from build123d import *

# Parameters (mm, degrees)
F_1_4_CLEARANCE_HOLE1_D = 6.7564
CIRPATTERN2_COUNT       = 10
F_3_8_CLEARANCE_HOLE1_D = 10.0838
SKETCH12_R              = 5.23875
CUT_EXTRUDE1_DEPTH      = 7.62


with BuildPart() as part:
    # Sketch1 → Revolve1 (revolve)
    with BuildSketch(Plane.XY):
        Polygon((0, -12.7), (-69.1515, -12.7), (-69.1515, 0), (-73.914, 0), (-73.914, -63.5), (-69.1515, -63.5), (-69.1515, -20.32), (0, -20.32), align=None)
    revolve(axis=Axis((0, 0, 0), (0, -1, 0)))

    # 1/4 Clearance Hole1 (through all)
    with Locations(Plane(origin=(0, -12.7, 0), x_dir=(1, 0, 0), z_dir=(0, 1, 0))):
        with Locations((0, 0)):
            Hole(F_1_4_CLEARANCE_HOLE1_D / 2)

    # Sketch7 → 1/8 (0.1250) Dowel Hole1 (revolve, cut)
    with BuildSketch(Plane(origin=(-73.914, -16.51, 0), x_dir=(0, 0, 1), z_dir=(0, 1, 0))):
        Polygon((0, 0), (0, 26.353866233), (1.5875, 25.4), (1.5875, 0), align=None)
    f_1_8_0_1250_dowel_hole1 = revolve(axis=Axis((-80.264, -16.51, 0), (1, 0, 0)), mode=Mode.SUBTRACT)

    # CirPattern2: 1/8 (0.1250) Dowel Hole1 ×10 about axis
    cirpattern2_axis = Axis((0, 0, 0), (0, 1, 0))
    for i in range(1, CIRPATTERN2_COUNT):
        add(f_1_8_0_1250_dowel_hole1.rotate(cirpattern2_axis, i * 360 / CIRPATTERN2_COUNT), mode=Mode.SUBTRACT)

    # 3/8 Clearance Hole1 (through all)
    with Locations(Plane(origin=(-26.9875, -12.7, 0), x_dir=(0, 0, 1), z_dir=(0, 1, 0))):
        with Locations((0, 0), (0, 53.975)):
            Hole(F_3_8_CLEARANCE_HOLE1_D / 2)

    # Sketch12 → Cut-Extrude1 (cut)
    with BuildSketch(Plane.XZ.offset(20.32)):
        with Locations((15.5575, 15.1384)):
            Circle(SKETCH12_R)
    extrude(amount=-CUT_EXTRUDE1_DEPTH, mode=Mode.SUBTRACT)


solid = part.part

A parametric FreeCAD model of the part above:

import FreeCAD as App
import Part
import Sketcher
Q = App.Units.Quantity


def add_polygon(sketch, points):
    """Adds a closed chain of lines whose ends are joined by coincident constraints."""
    first, n = sketch.GeometryCount, len(points)
    for a, b in zip(points, points[1:] + points[:1]):
        sketch.addGeometry(Part.LineSegment(App.Vector(*a, 0), App.Vector(*b, 0)), False)
    for i in range(n):
        sketch.addConstraint(Sketcher.Constraint("Coincident", first + i, 2, first + (i + 1) % n, 1))

doc = App.newDocument("Part")
body = doc.addObject("PartDesign::Body", "Body")

sketch1 = body.newObject("Sketcher::SketchObject", "Sketch")
sketch1.AttachmentSupport = (doc.getObject("XY_Plane"), [""])
sketch1.MapMode = "FlatFace"
add_polygon(sketch1, [(0, -12.7), (-69.2, -12.7), (-69.2, 0), (-73.9, 0), (-73.9, -63.5), (-69.2, -63.5), (-69.2, -20.3), (0, -20.3)])
sketch1.addConstraint(Sketcher.Constraint("Horizontal", 0))
sketch1.addConstraint(Sketcher.Constraint("Vertical", 1))
sketch1.addConstraint(Sketcher.Constraint("Horizontal", 2))
sketch1.addConstraint(Sketcher.Constraint("Vertical", 3))
sketch1.addConstraint(Sketcher.Constraint("Horizontal", 4))
sketch1.addConstraint(Sketcher.Constraint("Vertical", 5))
sketch1.addConstraint(Sketcher.Constraint("Horizontal", 6))
sketch1.addConstraint(Sketcher.Constraint("Vertical", 7))
sketch1.addConstraint(Sketcher.Constraint("PointOnObject", 1, 2, -1))
sketch1.addConstraint(Sketcher.Constraint("PointOnObject", 6, 2, -2))
sketch1.addConstraint(Sketcher.Constraint("Vertical", 1, 2, 4, 2))
sketch1.addConstraint(Sketcher.Constraint("DistanceY", 1, 1, 1, 2, Q("0.5 in")))
sketch1.addConstraint(Sketcher.Constraint("DistanceY", 3, 2, 3, 1, Q("2.5 in")))
sketch1.addConstraint(Sketcher.Constraint("DistanceY", 5, 1, 5, 2, Q("1.7 in")))
sketch1.addConstraint(Sketcher.Constraint("DistanceX", 2, 2, 2, 1, Q("0.1875 in")))
sketch1.addConstraint(Sketcher.Constraint("DistanceX", 2, 2, -1, 1, Q("2.91 in")))
revolution = body.newObject("PartDesign::Revolution", "Revolution")
revolution.Profile = sketch1
revolution.ReferenceAxis = (sketch1, ["V_Axis"])
revolution.Angle = 360

sketch2 = body.newObject("Sketcher::SketchObject", "Sketch001")
sketch2.AttachmentSupport = (doc.getObject("XZ_Plane"), [""])
sketch2.MapMode = "FlatFace"
sketch2.AttachmentOffset = App.Placement(App.Vector(0, 0, 0.5 * 25.4), App.Rotation())
sketch2.addGeometry(Part.Circle(App.Vector(0, 0, 0), App.Vector(0, 0, 1), 3.4), False)
sketch2.addConstraint(Sketcher.Constraint("Coincident", 0, 3, -1, 1))
sketch2.addConstraint(Sketcher.Constraint("Diameter", 0, Q("0.266 in")))
doc.recompute()
hole = body.newObject("PartDesign::Hole", "Hole")
hole.Profile = sketch2
hole.ThreadType = "None"
hole.Diameter = Q("0.266 in")
hole.DepthType = "ThroughAll"
hole.Reversed = True

sketch3 = body.newObject("Sketcher::SketchObject", "Sketch002")
sketch3.AttachmentSupport = (doc.getObject("XZ_Plane"), [""])
sketch3.MapMode = "FlatFace"
sketch3.AttachmentOffset = App.Placement(App.Vector(0, 0, 0.65 * 25.4), App.Rotation())
add_polygon(sketch3, [(-47.6, 0), (-73.9, 0), (-73.9, 1.6), (-48.5, 1.6)])
sketch3.addConstraint(Sketcher.Constraint("Horizontal", 0))
sketch3.addConstraint(Sketcher.Constraint("Vertical", 1))
sketch3.addConstraint(Sketcher.Constraint("Horizontal", 2))
sketch3.addConstraint(Sketcher.Constraint("PointOnObject", 0, 2, -1))
sketch3.addConstraint(Sketcher.Constraint("DistanceX", 2, 1, 2, 2, Q("1 in")))
sketch3.addConstraint(Sketcher.Constraint("Angle", 3, Q("-59 deg")))
sketch3.addConstraint(Sketcher.Constraint("DistanceY", 1, 1, 1, 2, Q("0.0625 in")))
sketch3.addConstraint(Sketcher.Constraint("DistanceX", 0, 2, -1, 1, Q("2.91 in")))
groove = body.newObject("PartDesign::Groove", "Groove")
groove.Profile = sketch3
groove.ReferenceAxis = (sketch3, ["H_Axis"])
groove.Angle = 360
doc.recompute()

polarpattern = body.newObject("PartDesign::PolarPattern", "PolarPattern")
polarpattern.Originals = [groove]
polarpattern.Axis = (doc.getObject("Y_Axis"), [""])
polarpattern.Angle = 360
polarpattern.Occurrences = 10
body.Tip = polarpattern

sketch4 = body.newObject("Sketcher::SketchObject", "Sketch003")
sketch4.AttachmentSupport = (doc.getObject("XZ_Plane"), [""])
sketch4.MapMode = "FlatFace"
sketch4.AttachmentOffset = App.Placement(App.Vector(0, 0, 0.5 * 25.4), App.Rotation())
sketch4.addGeometry(Part.Circle(App.Vector(-27, 0, 0), App.Vector(0, 0, 1), 5), False)
sketch4.addGeometry(Part.Circle(App.Vector(27, 0, 0), App.Vector(0, 0, 1), 5), False)
sketch4.addConstraint(Sketcher.Constraint("Equal", 0, 1))
sketch4.addConstraint(Sketcher.Constraint("Symmetric", 0, 3, 1, 3, -1, 1))
sketch4.addConstraint(Sketcher.Constraint("PointOnObject", 0, 3, -1))
sketch4.addConstraint(Sketcher.Constraint("Diameter", 0, Q("0.397 in")))
sketch4.addConstraint(Sketcher.Constraint("DistanceX", 0, 3, -1, 1, Q("1.0625 in")))
doc.recompute()
hole2 = body.newObject("PartDesign::Hole", "Hole001")
hole2.Profile = sketch4
hole2.ThreadType = "None"
hole2.Diameter = Q("0.397 in")
hole2.DepthType = "ThroughAll"
hole2.Reversed = True

sketch5 = body.newObject("Sketcher::SketchObject", "Sketch004")
sketch5.AttachmentSupport = (doc.getObject("XZ_Plane"), [""])
sketch5.MapMode = "FlatFace"
sketch5.AttachmentOffset = App.Placement(App.Vector(0, 0, 0.8 * 25.4), App.Rotation())
sketch5.addGeometry(Part.Circle(App.Vector(16, 15, 0), App.Vector(0, 0, 1), 5), False)
sketch5.addConstraint(Sketcher.Constraint("Diameter", 0, Q("0.4125 in")))
sketch5.addConstraint(Sketcher.Constraint("DistanceY", -1, 1, 0, 3, Q("0.596 in")))
sketch5.addConstraint(Sketcher.Constraint("DistanceX", -1, 1, 0, 3, Q("0.6125 in")))
pocket1 = body.newObject("PartDesign::Pocket", "Pocket")
pocket1.Profile = sketch5
pocket1.Length = Q("0.3 in")

doc.recompute()
